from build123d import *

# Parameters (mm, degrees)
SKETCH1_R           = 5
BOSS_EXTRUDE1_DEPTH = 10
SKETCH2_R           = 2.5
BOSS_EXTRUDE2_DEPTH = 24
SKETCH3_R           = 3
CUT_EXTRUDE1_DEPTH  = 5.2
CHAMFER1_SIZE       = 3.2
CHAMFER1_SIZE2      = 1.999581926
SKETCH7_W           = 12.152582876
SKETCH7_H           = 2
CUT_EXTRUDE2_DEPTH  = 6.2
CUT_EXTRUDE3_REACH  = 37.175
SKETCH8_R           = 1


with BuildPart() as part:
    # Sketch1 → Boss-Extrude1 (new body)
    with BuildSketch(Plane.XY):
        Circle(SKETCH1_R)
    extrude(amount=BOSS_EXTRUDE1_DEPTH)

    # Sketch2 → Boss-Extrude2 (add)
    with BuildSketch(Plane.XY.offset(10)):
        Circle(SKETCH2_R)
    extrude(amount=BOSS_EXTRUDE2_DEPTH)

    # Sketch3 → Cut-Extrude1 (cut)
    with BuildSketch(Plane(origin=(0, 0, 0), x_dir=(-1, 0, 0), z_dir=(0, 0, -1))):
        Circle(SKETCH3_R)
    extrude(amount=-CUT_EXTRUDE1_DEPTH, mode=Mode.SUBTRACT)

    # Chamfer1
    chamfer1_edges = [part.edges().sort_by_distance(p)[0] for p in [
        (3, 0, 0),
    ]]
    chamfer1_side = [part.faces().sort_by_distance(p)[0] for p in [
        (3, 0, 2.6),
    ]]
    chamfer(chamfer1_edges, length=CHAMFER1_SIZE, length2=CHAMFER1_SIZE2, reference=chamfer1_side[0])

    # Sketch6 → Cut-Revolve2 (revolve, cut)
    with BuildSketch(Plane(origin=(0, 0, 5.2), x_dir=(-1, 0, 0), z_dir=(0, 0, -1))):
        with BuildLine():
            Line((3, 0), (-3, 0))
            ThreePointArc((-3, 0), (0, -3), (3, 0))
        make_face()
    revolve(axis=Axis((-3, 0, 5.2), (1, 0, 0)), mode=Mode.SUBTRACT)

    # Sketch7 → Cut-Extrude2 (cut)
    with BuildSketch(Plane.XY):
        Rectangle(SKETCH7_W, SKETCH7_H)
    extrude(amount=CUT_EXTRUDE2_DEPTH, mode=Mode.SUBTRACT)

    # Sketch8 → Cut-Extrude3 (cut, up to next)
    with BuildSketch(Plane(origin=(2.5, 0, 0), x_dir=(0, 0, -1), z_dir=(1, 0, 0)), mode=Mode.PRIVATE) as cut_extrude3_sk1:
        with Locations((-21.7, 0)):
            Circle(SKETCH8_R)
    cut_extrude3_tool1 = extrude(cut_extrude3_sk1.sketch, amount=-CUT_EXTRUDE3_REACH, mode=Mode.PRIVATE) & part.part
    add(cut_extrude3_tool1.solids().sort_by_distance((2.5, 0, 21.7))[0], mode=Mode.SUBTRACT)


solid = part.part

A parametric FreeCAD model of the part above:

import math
import FreeCAD as App
import Part
import Sketcher


def edges_at(feature, points):
    """Names of the edges that pass closest to the given points."""
    edges = feature.Shape.Edges
    near = lambda p: min(range(len(edges)), key=lambda i: edges[i].distToShape(Part.Vertex(*p))[0])
    return sorted({f"Edge{near(p) + 1}" for p in points})

doc = App.newDocument("Part")
params = doc.addObject("Spreadsheet::Sheet", "Params")
for row, (alias, value) in enumerate([
    ("sketch1_diameter", "10 mm"),
    ("pad1_length", "10 mm"),
    ("sketch2_diameter", "5 mm"),
    ("pad2_length", "24 mm"),
    ("sketch3_diameter", "6 mm"),
    ("pocket1_length", "5.2 mm"),
    ("chamfer_size", "3.2 mm"),
    ("chamfer_size2", "1.999582 mm"),
    ("sketch4_radius", "3 mm"),
    ("groove_angle", "360 deg"),
    ("sketch5_height", "2 mm"),
    ("pocket2_length", "6.2 mm"),
    ("sketch6_diameter", "2 mm"),
    ("pocket3_length", "5 mm"),
], start=1):
    params.set(f"A{row}", alias)
    params.set(f"B{row}", "=" + value)
    params.setAlias(f"B{row}", alias)

body = doc.addObject("PartDesign::Body", "Body")

# Sketch on XY plane
sketch1 = body.newObject("Sketcher::SketchObject", "Sketch")
sketch1.AttachmentSupport = (doc.getObject("XY_Plane"), [""])
sketch1.MapMode = "FlatFace"
sketch1.addGeometry(Part.Circle(App.Vector(0, 0, 0), App.Vector(0, 0, 1), 5), False)
sketch1.addConstraint([
    Sketcher.Constraint("Coincident", 0, 3, -1, 1),
    Sketcher.Constraint("Diameter", 0, 10.0),
])
sketch1.setExpression("Constraints[1]", "Params.sketch1_diameter")
pad1 = body.newObject("PartDesign::Pad", "Pad")
pad1.Profile = sketch1
pad1.setExpression("Length", "Params.pad1_length")

# Sketch on XY plane
sketch2 = body.newObject("Sketcher::SketchObject", "Sketch001")
sketch2.AttachmentSupport = (doc.getObject("XY_Plane"), [""])
sketch2.MapMode = "FlatFace"
sketch2.AttachmentOffset = App.Placement(App.Vector(0, 0, 10), App.Rotation())
sketch2.addGeometry(Part.Circle(App.Vector(0, 0, 0), App.Vector(0, 0, 1), 2.5), False)
sketch2.addConstraint([
    Sketcher.Constraint("Coincident", 0, 3, -1, 1),
    Sketcher.Constraint("Diameter", 0, 5.0),
])
sketch2.setExpression("Constraints[1]", "Params.sketch2_diameter")
pad2 = body.newObject("PartDesign::Pad", "Pad001")
pad2.Profile = sketch2
pad2.setExpression("Length", "Params.pad2_length")

# Sketch on XY plane
sketch3 = body.newObject("Sketcher::SketchObject", "Sketch002")
sketch3.AttachmentSupport = (doc.getObject("XY_Plane"), [""])
sketch3.MapMode = "FlatFace"
sketch3.addGeometry(Part.Circle(App.Vector(0, 0, 0), App.Vector(0, 0, 1), 3), False)
sketch3.addConstraint([
    Sketcher.Constraint("Coincident", 0, 3, -1, 1),
    Sketcher.Constraint("Diameter", 0, 6.0),
])
sketch3.setExpression("Constraints[1]", "Params.sketch3_diameter")
pocket1 = body.newObject("PartDesign::Pocket", "Pocket")
pocket1.Profile = sketch3
pocket1.setExpression("Length", "Params.pocket1_length")
pocket1.Reversed = True
doc.recompute()

chamfer = body.newObject("PartDesign::Chamfer", "Chamfer")
chamfer.Base = (pocket1, edges_at(pocket1, [(3, 0, 0)]))
chamfer.ChamferType = "Two distances"
chamfer.setExpression("Size", "Params.chamfer_size")
chamfer.setExpression("Size2", "Params.chamfer_size2")
chamfer.FlipDirection = True

# Sketch on XY plane
sketch4 = body.newObject("Sketcher::SketchObject", "Sketch003")
sketch4.AttachmentSupport = (doc.getObject("XY_Plane"), [""])
sketch4.MapMode = "FlatFace"
sketch4.AttachmentOffset = App.Placement(App.Vector(0, 0, 5.2), App.Rotation())
sketch4.addGeometry([
    Part.LineSegment(App.Vector(-3, 0, 0), App.Vector(3, 0, 0)),
    Part.ArcOfCircle(Part.Circle(App.Vector(0, 0, 0), App.Vector(0, 0, 1), 3), math.radians(180), math.radians(360)),
], False)
sketch4.addConstraint([
    Sketcher.Constraint("Coincident", 0, 1, 1, 1),
    Sketcher.Constraint("Coincident", 1, 2, 0, 2),
    Sketcher.Constraint("Horizontal", 0),
    Sketcher.Constraint("Coincident", 1, 3, -1, 1),
    Sketcher.Constraint("PointOnObject", 0, 1, -1),
    Sketcher.Constraint("Radius", 1, 3.0),
])
sketch4.setExpression("Constraints[5]", "Params.sketch4_radius")
groove = body.newObject("PartDesign::Groove", "Groove")
groove.Profile = sketch4
groove.ReferenceAxis = (sketch4, ["H_Axis"])
groove.setExpression("Angle", "Params.groove_angle")

# Sketch on XY plane
sketch5 = body.newObject("Sketcher::SketchObject", "Sketch004")
sketch5.AttachmentSupport = (doc.getObject("XY_Plane"), [""])
sketch5.MapMode = "FlatFace"
sketch5.addGeometry([
    Part.LineSegment(App.Vector(-6.1, 1, 0), App.Vector(-6.1, -1, 0)),
    Part.LineSegment(App.Vector(-6.1, -1, 0), App.Vector(6.1, -1, 0)),
    Part.LineSegment(App.Vector(6.1, -1, 0), App.Vector(6.1, 1, 0)),
    Part.LineSegment(App.Vector(6.1, 1, 0), App.Vector(-6.1, 1, 0)),
], False)
sketch5.addConstraint([
    Sketcher.Constraint("Coincident", 0, 2, 1, 1),
    Sketcher.Constraint("Coincident", 1, 2, 2, 1),
    Sketcher.Constraint("Coincident", 2, 2, 3, 1),
    Sketcher.Constraint("Coincident", 3, 2, 0, 1),
    Sketcher.Constraint("Vertical", 0),
    Sketcher.Constraint("Horizontal", 1),
    Sketcher.Constraint("Vertical", 2),
    Sketcher.Constraint("Horizontal", 3),
    Sketcher.Constraint("Symmetric", 0, 2, 2, 2, -1, 1),
    Sketcher.Constraint("DistanceY", 0, 2, 0, 1, 2.0),
    Sketcher.Constraint("DistanceX", 1, 1, 1, 2, 12.152583),
])
sketch5.setExpression("Constraints[9]", "Params.sketch5_height")
pocket2 = body.newObject("PartDesign::Pocket", "Pocket001")
pocket2.Profile = sketch5
pocket2.setExpression("Length", "Params.pocket2_length")
pocket2.Reversed = True

# Sketch on YZ plane
sketch6 = body.newObject("Sketcher::SketchObject", "Sketch005")
sketch6.AttachmentSupport = (doc.getObject("YZ_Plane"), [""])
sketch6.MapMode = "FlatFace"
sketch6.AttachmentOffset = App.Placement(App.Vector(0, 0, 2.5), App.Rotation())
sketch6.addGeometry(Part.Circle(App.Vector(0, 21.7, 0), App.Vector(0, 0, 1), 1), False)
sketch6.addConstraint([
    Sketcher.Constraint("PointOnObject", 0, 3, -2),
    Sketcher.Constraint("Diameter", 0, 2.0),
    Sketcher.Constraint("DistanceY", -1, 1, 0, 3, 21.7),
])
sketch6.setExpression("Constraints[1]", "Params.sketch6_diameter")
pocket3 = body.newObject("PartDesign::Pocket", "Pocket002")
pocket3.Profile = sketch6
pocket3.setExpression("Length", "Params.pocket3_length")

doc.recompute()
